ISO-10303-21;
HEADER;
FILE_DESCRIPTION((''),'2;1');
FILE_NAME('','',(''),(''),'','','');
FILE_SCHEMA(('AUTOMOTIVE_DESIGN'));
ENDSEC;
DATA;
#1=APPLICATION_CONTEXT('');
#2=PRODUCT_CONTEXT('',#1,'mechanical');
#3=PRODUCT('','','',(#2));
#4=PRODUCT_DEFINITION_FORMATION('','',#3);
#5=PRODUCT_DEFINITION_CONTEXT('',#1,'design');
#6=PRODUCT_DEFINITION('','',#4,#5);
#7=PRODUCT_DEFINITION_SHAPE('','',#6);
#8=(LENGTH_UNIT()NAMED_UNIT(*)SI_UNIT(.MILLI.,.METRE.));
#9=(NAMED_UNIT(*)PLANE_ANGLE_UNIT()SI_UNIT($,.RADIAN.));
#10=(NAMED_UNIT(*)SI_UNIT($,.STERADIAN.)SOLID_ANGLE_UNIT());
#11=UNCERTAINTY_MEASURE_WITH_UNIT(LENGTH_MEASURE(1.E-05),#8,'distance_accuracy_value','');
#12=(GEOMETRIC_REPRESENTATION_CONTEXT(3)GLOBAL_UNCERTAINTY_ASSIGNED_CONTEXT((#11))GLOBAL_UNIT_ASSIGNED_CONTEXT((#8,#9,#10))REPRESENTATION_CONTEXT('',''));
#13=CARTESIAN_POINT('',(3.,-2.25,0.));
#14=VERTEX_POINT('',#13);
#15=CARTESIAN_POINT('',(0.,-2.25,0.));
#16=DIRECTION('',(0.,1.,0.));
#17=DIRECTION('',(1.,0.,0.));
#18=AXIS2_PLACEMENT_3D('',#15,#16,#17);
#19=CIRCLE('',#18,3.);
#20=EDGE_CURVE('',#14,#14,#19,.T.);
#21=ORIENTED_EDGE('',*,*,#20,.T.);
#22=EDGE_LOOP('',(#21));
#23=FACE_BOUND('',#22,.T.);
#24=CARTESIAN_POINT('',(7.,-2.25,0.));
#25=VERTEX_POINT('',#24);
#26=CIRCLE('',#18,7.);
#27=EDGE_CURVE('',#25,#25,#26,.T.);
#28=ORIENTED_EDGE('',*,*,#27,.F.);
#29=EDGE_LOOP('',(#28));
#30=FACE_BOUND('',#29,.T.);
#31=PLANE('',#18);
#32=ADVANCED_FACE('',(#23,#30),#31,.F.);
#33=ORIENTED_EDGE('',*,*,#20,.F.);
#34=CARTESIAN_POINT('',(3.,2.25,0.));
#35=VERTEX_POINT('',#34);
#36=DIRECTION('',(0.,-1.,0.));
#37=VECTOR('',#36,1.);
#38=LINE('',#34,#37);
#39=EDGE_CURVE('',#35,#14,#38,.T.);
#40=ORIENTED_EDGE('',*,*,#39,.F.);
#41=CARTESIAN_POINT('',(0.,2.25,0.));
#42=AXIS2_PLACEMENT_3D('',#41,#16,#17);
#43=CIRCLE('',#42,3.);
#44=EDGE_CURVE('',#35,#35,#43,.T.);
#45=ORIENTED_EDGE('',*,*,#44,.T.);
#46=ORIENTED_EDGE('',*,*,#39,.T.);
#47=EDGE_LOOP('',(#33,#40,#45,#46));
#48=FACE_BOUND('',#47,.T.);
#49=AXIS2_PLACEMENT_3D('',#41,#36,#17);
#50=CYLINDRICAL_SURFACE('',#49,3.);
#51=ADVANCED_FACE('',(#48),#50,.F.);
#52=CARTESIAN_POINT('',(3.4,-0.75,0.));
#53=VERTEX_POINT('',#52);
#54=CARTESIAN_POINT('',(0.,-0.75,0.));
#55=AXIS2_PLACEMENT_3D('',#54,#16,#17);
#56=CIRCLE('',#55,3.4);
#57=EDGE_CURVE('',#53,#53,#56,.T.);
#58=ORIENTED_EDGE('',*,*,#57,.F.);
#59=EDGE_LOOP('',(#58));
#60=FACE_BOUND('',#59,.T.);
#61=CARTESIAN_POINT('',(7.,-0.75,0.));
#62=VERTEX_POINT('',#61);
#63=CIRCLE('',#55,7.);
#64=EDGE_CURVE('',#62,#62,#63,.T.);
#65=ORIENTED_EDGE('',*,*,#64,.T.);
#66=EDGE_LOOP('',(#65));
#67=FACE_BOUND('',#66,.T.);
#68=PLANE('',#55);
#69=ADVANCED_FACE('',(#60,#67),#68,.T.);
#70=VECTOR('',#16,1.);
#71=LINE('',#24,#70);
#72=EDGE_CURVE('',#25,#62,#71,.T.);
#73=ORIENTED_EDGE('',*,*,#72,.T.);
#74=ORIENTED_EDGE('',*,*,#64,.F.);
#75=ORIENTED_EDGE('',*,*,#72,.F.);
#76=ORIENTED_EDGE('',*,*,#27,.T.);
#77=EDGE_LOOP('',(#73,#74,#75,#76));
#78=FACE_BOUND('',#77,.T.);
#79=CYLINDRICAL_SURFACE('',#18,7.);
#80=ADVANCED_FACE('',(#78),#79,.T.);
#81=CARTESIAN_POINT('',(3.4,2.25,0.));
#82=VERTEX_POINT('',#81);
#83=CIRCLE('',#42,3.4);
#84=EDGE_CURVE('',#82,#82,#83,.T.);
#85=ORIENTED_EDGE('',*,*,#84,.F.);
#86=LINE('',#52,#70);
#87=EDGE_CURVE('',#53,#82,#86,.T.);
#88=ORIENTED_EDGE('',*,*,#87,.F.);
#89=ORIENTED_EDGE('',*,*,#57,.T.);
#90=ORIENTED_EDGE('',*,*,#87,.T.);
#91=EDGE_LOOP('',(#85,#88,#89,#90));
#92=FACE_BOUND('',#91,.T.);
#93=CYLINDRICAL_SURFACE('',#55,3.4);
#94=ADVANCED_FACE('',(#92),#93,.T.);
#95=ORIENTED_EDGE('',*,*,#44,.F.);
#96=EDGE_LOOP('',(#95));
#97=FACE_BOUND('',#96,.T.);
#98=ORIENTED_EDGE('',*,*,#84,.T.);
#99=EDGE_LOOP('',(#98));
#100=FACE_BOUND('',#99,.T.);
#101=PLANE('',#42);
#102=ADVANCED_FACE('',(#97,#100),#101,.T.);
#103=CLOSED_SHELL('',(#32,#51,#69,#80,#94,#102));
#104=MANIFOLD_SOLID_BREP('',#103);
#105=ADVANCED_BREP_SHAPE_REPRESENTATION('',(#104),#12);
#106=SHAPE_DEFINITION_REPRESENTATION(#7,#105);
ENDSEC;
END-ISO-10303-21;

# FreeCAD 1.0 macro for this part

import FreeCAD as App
import Part
import Sketcher

doc = App.newDocument("Part")
params = doc.addObject("Spreadsheet::Sheet", "Params")
for row, (alias, value) in enumerate([
    ("sketch1_height", "3 mm"),
    ("sketch1_height2", "1.5 mm"),
    ("sketch1_width", "4 mm"),
    ("sketch1_width2", "0.4 mm"),
    ("revolution_angle", "360 deg"),
], start=1):
    params.set(f"A{row}", alias)
    params.set(f"B{row}", "=" + value)
    params.setAlias(f"B{row}", alias)

body = doc.addObject("PartDesign::Body", "Body")

# Sketch on XY plane
sketch1 = body.newObject("Sketcher::SketchObject", "Sketch")
sketch1.AttachmentSupport = (doc.getObject("XY_Plane"), [""])
sketch1.MapMode = "FlatFace"
sketch1.addGeometry([
    Part.LineSegment(App.Vector(3.4, 2.25, 0), App.Vector(3, 2.25, 0)),  # 0
    Part.LineSegment(App.Vector(3, 2.25, 0), App.Vector(3, -2.25, 0)),  # 1
    Part.LineSegment(App.Vector(3, -2.25, 0), App.Vector(7, -2.25, 0)),  # 2
    Part.LineSegment(App.Vector(7, -2.25, 0), App.Vector(7, -0.75, 0)),  # 3
    Part.LineSegment(App.Vector(7, -0.75, 0), App.Vector(3.4, -0.75, 0)),  # 4
    Part.LineSegment(App.Vector(3.4, -0.75, 0), App.Vector(3.4, 2.25, 0)),  # 5
], False)
sketch1.addConstraint([
    Sketcher.Constraint("Coincident", 0, 2, 1, 1),
    Sketcher.Constraint("Coincident", 1, 2, 2, 1),
    Sketcher.Constraint("Coincident", 2, 2, 3, 1),
    Sketcher.Constraint("Coincident", 3, 2, 4, 1),
    Sketcher.Constraint("Coincident", 4, 2, 5, 1),
    Sketcher.Constraint("Coincident", 5, 2, 0, 1),
    Sketcher.Constraint("Horizontal", 0),
    Sketcher.Constraint("Vertical", 1),
    Sketcher.Constraint("Horizontal", 2),
    Sketcher.Constraint("Vertical", 3),
    Sketcher.Constraint("Horizontal", 4),
    Sketcher.Constraint("Vertical", 5),
    Sketcher.Constraint("DistanceY", 5, 1, 5, 2, 3.0),
    Sketcher.Constraint("DistanceY", 3, 1, 3, 2, 1.5),
    Sketcher.Constraint("DistanceX", -1, 1, 0, 2, 3.0),
    Sketcher.Constraint("DistanceX", 2, 1, 2, 2, 4.0),
    Sketcher.Constraint("DistanceX", 0, 2, 0, 1, 0.4),
    Sketcher.Constraint("DistanceY", -1, 1, 0, 2, 2.25),
])
sketch1.setExpression("Constraints[12]", "Params.sketch1_height")
sketch1.setExpression("Constraints[13]", "Params.sketch1_height2")
sketch1.setExpression("Constraints[15]", "Params.sketch1_width")
sketch1.setExpression("Constraints[16]", "Params.sketch1_width2")
revolution = body.newObject("PartDesign::Revolution", "Revolution")
revolution.Profile = sketch1
revolution.ReferenceAxis = (sketch1, ["V_Axis"])
revolution.setExpression("Angle", "Params.revolution_angle")

doc.recompute()
